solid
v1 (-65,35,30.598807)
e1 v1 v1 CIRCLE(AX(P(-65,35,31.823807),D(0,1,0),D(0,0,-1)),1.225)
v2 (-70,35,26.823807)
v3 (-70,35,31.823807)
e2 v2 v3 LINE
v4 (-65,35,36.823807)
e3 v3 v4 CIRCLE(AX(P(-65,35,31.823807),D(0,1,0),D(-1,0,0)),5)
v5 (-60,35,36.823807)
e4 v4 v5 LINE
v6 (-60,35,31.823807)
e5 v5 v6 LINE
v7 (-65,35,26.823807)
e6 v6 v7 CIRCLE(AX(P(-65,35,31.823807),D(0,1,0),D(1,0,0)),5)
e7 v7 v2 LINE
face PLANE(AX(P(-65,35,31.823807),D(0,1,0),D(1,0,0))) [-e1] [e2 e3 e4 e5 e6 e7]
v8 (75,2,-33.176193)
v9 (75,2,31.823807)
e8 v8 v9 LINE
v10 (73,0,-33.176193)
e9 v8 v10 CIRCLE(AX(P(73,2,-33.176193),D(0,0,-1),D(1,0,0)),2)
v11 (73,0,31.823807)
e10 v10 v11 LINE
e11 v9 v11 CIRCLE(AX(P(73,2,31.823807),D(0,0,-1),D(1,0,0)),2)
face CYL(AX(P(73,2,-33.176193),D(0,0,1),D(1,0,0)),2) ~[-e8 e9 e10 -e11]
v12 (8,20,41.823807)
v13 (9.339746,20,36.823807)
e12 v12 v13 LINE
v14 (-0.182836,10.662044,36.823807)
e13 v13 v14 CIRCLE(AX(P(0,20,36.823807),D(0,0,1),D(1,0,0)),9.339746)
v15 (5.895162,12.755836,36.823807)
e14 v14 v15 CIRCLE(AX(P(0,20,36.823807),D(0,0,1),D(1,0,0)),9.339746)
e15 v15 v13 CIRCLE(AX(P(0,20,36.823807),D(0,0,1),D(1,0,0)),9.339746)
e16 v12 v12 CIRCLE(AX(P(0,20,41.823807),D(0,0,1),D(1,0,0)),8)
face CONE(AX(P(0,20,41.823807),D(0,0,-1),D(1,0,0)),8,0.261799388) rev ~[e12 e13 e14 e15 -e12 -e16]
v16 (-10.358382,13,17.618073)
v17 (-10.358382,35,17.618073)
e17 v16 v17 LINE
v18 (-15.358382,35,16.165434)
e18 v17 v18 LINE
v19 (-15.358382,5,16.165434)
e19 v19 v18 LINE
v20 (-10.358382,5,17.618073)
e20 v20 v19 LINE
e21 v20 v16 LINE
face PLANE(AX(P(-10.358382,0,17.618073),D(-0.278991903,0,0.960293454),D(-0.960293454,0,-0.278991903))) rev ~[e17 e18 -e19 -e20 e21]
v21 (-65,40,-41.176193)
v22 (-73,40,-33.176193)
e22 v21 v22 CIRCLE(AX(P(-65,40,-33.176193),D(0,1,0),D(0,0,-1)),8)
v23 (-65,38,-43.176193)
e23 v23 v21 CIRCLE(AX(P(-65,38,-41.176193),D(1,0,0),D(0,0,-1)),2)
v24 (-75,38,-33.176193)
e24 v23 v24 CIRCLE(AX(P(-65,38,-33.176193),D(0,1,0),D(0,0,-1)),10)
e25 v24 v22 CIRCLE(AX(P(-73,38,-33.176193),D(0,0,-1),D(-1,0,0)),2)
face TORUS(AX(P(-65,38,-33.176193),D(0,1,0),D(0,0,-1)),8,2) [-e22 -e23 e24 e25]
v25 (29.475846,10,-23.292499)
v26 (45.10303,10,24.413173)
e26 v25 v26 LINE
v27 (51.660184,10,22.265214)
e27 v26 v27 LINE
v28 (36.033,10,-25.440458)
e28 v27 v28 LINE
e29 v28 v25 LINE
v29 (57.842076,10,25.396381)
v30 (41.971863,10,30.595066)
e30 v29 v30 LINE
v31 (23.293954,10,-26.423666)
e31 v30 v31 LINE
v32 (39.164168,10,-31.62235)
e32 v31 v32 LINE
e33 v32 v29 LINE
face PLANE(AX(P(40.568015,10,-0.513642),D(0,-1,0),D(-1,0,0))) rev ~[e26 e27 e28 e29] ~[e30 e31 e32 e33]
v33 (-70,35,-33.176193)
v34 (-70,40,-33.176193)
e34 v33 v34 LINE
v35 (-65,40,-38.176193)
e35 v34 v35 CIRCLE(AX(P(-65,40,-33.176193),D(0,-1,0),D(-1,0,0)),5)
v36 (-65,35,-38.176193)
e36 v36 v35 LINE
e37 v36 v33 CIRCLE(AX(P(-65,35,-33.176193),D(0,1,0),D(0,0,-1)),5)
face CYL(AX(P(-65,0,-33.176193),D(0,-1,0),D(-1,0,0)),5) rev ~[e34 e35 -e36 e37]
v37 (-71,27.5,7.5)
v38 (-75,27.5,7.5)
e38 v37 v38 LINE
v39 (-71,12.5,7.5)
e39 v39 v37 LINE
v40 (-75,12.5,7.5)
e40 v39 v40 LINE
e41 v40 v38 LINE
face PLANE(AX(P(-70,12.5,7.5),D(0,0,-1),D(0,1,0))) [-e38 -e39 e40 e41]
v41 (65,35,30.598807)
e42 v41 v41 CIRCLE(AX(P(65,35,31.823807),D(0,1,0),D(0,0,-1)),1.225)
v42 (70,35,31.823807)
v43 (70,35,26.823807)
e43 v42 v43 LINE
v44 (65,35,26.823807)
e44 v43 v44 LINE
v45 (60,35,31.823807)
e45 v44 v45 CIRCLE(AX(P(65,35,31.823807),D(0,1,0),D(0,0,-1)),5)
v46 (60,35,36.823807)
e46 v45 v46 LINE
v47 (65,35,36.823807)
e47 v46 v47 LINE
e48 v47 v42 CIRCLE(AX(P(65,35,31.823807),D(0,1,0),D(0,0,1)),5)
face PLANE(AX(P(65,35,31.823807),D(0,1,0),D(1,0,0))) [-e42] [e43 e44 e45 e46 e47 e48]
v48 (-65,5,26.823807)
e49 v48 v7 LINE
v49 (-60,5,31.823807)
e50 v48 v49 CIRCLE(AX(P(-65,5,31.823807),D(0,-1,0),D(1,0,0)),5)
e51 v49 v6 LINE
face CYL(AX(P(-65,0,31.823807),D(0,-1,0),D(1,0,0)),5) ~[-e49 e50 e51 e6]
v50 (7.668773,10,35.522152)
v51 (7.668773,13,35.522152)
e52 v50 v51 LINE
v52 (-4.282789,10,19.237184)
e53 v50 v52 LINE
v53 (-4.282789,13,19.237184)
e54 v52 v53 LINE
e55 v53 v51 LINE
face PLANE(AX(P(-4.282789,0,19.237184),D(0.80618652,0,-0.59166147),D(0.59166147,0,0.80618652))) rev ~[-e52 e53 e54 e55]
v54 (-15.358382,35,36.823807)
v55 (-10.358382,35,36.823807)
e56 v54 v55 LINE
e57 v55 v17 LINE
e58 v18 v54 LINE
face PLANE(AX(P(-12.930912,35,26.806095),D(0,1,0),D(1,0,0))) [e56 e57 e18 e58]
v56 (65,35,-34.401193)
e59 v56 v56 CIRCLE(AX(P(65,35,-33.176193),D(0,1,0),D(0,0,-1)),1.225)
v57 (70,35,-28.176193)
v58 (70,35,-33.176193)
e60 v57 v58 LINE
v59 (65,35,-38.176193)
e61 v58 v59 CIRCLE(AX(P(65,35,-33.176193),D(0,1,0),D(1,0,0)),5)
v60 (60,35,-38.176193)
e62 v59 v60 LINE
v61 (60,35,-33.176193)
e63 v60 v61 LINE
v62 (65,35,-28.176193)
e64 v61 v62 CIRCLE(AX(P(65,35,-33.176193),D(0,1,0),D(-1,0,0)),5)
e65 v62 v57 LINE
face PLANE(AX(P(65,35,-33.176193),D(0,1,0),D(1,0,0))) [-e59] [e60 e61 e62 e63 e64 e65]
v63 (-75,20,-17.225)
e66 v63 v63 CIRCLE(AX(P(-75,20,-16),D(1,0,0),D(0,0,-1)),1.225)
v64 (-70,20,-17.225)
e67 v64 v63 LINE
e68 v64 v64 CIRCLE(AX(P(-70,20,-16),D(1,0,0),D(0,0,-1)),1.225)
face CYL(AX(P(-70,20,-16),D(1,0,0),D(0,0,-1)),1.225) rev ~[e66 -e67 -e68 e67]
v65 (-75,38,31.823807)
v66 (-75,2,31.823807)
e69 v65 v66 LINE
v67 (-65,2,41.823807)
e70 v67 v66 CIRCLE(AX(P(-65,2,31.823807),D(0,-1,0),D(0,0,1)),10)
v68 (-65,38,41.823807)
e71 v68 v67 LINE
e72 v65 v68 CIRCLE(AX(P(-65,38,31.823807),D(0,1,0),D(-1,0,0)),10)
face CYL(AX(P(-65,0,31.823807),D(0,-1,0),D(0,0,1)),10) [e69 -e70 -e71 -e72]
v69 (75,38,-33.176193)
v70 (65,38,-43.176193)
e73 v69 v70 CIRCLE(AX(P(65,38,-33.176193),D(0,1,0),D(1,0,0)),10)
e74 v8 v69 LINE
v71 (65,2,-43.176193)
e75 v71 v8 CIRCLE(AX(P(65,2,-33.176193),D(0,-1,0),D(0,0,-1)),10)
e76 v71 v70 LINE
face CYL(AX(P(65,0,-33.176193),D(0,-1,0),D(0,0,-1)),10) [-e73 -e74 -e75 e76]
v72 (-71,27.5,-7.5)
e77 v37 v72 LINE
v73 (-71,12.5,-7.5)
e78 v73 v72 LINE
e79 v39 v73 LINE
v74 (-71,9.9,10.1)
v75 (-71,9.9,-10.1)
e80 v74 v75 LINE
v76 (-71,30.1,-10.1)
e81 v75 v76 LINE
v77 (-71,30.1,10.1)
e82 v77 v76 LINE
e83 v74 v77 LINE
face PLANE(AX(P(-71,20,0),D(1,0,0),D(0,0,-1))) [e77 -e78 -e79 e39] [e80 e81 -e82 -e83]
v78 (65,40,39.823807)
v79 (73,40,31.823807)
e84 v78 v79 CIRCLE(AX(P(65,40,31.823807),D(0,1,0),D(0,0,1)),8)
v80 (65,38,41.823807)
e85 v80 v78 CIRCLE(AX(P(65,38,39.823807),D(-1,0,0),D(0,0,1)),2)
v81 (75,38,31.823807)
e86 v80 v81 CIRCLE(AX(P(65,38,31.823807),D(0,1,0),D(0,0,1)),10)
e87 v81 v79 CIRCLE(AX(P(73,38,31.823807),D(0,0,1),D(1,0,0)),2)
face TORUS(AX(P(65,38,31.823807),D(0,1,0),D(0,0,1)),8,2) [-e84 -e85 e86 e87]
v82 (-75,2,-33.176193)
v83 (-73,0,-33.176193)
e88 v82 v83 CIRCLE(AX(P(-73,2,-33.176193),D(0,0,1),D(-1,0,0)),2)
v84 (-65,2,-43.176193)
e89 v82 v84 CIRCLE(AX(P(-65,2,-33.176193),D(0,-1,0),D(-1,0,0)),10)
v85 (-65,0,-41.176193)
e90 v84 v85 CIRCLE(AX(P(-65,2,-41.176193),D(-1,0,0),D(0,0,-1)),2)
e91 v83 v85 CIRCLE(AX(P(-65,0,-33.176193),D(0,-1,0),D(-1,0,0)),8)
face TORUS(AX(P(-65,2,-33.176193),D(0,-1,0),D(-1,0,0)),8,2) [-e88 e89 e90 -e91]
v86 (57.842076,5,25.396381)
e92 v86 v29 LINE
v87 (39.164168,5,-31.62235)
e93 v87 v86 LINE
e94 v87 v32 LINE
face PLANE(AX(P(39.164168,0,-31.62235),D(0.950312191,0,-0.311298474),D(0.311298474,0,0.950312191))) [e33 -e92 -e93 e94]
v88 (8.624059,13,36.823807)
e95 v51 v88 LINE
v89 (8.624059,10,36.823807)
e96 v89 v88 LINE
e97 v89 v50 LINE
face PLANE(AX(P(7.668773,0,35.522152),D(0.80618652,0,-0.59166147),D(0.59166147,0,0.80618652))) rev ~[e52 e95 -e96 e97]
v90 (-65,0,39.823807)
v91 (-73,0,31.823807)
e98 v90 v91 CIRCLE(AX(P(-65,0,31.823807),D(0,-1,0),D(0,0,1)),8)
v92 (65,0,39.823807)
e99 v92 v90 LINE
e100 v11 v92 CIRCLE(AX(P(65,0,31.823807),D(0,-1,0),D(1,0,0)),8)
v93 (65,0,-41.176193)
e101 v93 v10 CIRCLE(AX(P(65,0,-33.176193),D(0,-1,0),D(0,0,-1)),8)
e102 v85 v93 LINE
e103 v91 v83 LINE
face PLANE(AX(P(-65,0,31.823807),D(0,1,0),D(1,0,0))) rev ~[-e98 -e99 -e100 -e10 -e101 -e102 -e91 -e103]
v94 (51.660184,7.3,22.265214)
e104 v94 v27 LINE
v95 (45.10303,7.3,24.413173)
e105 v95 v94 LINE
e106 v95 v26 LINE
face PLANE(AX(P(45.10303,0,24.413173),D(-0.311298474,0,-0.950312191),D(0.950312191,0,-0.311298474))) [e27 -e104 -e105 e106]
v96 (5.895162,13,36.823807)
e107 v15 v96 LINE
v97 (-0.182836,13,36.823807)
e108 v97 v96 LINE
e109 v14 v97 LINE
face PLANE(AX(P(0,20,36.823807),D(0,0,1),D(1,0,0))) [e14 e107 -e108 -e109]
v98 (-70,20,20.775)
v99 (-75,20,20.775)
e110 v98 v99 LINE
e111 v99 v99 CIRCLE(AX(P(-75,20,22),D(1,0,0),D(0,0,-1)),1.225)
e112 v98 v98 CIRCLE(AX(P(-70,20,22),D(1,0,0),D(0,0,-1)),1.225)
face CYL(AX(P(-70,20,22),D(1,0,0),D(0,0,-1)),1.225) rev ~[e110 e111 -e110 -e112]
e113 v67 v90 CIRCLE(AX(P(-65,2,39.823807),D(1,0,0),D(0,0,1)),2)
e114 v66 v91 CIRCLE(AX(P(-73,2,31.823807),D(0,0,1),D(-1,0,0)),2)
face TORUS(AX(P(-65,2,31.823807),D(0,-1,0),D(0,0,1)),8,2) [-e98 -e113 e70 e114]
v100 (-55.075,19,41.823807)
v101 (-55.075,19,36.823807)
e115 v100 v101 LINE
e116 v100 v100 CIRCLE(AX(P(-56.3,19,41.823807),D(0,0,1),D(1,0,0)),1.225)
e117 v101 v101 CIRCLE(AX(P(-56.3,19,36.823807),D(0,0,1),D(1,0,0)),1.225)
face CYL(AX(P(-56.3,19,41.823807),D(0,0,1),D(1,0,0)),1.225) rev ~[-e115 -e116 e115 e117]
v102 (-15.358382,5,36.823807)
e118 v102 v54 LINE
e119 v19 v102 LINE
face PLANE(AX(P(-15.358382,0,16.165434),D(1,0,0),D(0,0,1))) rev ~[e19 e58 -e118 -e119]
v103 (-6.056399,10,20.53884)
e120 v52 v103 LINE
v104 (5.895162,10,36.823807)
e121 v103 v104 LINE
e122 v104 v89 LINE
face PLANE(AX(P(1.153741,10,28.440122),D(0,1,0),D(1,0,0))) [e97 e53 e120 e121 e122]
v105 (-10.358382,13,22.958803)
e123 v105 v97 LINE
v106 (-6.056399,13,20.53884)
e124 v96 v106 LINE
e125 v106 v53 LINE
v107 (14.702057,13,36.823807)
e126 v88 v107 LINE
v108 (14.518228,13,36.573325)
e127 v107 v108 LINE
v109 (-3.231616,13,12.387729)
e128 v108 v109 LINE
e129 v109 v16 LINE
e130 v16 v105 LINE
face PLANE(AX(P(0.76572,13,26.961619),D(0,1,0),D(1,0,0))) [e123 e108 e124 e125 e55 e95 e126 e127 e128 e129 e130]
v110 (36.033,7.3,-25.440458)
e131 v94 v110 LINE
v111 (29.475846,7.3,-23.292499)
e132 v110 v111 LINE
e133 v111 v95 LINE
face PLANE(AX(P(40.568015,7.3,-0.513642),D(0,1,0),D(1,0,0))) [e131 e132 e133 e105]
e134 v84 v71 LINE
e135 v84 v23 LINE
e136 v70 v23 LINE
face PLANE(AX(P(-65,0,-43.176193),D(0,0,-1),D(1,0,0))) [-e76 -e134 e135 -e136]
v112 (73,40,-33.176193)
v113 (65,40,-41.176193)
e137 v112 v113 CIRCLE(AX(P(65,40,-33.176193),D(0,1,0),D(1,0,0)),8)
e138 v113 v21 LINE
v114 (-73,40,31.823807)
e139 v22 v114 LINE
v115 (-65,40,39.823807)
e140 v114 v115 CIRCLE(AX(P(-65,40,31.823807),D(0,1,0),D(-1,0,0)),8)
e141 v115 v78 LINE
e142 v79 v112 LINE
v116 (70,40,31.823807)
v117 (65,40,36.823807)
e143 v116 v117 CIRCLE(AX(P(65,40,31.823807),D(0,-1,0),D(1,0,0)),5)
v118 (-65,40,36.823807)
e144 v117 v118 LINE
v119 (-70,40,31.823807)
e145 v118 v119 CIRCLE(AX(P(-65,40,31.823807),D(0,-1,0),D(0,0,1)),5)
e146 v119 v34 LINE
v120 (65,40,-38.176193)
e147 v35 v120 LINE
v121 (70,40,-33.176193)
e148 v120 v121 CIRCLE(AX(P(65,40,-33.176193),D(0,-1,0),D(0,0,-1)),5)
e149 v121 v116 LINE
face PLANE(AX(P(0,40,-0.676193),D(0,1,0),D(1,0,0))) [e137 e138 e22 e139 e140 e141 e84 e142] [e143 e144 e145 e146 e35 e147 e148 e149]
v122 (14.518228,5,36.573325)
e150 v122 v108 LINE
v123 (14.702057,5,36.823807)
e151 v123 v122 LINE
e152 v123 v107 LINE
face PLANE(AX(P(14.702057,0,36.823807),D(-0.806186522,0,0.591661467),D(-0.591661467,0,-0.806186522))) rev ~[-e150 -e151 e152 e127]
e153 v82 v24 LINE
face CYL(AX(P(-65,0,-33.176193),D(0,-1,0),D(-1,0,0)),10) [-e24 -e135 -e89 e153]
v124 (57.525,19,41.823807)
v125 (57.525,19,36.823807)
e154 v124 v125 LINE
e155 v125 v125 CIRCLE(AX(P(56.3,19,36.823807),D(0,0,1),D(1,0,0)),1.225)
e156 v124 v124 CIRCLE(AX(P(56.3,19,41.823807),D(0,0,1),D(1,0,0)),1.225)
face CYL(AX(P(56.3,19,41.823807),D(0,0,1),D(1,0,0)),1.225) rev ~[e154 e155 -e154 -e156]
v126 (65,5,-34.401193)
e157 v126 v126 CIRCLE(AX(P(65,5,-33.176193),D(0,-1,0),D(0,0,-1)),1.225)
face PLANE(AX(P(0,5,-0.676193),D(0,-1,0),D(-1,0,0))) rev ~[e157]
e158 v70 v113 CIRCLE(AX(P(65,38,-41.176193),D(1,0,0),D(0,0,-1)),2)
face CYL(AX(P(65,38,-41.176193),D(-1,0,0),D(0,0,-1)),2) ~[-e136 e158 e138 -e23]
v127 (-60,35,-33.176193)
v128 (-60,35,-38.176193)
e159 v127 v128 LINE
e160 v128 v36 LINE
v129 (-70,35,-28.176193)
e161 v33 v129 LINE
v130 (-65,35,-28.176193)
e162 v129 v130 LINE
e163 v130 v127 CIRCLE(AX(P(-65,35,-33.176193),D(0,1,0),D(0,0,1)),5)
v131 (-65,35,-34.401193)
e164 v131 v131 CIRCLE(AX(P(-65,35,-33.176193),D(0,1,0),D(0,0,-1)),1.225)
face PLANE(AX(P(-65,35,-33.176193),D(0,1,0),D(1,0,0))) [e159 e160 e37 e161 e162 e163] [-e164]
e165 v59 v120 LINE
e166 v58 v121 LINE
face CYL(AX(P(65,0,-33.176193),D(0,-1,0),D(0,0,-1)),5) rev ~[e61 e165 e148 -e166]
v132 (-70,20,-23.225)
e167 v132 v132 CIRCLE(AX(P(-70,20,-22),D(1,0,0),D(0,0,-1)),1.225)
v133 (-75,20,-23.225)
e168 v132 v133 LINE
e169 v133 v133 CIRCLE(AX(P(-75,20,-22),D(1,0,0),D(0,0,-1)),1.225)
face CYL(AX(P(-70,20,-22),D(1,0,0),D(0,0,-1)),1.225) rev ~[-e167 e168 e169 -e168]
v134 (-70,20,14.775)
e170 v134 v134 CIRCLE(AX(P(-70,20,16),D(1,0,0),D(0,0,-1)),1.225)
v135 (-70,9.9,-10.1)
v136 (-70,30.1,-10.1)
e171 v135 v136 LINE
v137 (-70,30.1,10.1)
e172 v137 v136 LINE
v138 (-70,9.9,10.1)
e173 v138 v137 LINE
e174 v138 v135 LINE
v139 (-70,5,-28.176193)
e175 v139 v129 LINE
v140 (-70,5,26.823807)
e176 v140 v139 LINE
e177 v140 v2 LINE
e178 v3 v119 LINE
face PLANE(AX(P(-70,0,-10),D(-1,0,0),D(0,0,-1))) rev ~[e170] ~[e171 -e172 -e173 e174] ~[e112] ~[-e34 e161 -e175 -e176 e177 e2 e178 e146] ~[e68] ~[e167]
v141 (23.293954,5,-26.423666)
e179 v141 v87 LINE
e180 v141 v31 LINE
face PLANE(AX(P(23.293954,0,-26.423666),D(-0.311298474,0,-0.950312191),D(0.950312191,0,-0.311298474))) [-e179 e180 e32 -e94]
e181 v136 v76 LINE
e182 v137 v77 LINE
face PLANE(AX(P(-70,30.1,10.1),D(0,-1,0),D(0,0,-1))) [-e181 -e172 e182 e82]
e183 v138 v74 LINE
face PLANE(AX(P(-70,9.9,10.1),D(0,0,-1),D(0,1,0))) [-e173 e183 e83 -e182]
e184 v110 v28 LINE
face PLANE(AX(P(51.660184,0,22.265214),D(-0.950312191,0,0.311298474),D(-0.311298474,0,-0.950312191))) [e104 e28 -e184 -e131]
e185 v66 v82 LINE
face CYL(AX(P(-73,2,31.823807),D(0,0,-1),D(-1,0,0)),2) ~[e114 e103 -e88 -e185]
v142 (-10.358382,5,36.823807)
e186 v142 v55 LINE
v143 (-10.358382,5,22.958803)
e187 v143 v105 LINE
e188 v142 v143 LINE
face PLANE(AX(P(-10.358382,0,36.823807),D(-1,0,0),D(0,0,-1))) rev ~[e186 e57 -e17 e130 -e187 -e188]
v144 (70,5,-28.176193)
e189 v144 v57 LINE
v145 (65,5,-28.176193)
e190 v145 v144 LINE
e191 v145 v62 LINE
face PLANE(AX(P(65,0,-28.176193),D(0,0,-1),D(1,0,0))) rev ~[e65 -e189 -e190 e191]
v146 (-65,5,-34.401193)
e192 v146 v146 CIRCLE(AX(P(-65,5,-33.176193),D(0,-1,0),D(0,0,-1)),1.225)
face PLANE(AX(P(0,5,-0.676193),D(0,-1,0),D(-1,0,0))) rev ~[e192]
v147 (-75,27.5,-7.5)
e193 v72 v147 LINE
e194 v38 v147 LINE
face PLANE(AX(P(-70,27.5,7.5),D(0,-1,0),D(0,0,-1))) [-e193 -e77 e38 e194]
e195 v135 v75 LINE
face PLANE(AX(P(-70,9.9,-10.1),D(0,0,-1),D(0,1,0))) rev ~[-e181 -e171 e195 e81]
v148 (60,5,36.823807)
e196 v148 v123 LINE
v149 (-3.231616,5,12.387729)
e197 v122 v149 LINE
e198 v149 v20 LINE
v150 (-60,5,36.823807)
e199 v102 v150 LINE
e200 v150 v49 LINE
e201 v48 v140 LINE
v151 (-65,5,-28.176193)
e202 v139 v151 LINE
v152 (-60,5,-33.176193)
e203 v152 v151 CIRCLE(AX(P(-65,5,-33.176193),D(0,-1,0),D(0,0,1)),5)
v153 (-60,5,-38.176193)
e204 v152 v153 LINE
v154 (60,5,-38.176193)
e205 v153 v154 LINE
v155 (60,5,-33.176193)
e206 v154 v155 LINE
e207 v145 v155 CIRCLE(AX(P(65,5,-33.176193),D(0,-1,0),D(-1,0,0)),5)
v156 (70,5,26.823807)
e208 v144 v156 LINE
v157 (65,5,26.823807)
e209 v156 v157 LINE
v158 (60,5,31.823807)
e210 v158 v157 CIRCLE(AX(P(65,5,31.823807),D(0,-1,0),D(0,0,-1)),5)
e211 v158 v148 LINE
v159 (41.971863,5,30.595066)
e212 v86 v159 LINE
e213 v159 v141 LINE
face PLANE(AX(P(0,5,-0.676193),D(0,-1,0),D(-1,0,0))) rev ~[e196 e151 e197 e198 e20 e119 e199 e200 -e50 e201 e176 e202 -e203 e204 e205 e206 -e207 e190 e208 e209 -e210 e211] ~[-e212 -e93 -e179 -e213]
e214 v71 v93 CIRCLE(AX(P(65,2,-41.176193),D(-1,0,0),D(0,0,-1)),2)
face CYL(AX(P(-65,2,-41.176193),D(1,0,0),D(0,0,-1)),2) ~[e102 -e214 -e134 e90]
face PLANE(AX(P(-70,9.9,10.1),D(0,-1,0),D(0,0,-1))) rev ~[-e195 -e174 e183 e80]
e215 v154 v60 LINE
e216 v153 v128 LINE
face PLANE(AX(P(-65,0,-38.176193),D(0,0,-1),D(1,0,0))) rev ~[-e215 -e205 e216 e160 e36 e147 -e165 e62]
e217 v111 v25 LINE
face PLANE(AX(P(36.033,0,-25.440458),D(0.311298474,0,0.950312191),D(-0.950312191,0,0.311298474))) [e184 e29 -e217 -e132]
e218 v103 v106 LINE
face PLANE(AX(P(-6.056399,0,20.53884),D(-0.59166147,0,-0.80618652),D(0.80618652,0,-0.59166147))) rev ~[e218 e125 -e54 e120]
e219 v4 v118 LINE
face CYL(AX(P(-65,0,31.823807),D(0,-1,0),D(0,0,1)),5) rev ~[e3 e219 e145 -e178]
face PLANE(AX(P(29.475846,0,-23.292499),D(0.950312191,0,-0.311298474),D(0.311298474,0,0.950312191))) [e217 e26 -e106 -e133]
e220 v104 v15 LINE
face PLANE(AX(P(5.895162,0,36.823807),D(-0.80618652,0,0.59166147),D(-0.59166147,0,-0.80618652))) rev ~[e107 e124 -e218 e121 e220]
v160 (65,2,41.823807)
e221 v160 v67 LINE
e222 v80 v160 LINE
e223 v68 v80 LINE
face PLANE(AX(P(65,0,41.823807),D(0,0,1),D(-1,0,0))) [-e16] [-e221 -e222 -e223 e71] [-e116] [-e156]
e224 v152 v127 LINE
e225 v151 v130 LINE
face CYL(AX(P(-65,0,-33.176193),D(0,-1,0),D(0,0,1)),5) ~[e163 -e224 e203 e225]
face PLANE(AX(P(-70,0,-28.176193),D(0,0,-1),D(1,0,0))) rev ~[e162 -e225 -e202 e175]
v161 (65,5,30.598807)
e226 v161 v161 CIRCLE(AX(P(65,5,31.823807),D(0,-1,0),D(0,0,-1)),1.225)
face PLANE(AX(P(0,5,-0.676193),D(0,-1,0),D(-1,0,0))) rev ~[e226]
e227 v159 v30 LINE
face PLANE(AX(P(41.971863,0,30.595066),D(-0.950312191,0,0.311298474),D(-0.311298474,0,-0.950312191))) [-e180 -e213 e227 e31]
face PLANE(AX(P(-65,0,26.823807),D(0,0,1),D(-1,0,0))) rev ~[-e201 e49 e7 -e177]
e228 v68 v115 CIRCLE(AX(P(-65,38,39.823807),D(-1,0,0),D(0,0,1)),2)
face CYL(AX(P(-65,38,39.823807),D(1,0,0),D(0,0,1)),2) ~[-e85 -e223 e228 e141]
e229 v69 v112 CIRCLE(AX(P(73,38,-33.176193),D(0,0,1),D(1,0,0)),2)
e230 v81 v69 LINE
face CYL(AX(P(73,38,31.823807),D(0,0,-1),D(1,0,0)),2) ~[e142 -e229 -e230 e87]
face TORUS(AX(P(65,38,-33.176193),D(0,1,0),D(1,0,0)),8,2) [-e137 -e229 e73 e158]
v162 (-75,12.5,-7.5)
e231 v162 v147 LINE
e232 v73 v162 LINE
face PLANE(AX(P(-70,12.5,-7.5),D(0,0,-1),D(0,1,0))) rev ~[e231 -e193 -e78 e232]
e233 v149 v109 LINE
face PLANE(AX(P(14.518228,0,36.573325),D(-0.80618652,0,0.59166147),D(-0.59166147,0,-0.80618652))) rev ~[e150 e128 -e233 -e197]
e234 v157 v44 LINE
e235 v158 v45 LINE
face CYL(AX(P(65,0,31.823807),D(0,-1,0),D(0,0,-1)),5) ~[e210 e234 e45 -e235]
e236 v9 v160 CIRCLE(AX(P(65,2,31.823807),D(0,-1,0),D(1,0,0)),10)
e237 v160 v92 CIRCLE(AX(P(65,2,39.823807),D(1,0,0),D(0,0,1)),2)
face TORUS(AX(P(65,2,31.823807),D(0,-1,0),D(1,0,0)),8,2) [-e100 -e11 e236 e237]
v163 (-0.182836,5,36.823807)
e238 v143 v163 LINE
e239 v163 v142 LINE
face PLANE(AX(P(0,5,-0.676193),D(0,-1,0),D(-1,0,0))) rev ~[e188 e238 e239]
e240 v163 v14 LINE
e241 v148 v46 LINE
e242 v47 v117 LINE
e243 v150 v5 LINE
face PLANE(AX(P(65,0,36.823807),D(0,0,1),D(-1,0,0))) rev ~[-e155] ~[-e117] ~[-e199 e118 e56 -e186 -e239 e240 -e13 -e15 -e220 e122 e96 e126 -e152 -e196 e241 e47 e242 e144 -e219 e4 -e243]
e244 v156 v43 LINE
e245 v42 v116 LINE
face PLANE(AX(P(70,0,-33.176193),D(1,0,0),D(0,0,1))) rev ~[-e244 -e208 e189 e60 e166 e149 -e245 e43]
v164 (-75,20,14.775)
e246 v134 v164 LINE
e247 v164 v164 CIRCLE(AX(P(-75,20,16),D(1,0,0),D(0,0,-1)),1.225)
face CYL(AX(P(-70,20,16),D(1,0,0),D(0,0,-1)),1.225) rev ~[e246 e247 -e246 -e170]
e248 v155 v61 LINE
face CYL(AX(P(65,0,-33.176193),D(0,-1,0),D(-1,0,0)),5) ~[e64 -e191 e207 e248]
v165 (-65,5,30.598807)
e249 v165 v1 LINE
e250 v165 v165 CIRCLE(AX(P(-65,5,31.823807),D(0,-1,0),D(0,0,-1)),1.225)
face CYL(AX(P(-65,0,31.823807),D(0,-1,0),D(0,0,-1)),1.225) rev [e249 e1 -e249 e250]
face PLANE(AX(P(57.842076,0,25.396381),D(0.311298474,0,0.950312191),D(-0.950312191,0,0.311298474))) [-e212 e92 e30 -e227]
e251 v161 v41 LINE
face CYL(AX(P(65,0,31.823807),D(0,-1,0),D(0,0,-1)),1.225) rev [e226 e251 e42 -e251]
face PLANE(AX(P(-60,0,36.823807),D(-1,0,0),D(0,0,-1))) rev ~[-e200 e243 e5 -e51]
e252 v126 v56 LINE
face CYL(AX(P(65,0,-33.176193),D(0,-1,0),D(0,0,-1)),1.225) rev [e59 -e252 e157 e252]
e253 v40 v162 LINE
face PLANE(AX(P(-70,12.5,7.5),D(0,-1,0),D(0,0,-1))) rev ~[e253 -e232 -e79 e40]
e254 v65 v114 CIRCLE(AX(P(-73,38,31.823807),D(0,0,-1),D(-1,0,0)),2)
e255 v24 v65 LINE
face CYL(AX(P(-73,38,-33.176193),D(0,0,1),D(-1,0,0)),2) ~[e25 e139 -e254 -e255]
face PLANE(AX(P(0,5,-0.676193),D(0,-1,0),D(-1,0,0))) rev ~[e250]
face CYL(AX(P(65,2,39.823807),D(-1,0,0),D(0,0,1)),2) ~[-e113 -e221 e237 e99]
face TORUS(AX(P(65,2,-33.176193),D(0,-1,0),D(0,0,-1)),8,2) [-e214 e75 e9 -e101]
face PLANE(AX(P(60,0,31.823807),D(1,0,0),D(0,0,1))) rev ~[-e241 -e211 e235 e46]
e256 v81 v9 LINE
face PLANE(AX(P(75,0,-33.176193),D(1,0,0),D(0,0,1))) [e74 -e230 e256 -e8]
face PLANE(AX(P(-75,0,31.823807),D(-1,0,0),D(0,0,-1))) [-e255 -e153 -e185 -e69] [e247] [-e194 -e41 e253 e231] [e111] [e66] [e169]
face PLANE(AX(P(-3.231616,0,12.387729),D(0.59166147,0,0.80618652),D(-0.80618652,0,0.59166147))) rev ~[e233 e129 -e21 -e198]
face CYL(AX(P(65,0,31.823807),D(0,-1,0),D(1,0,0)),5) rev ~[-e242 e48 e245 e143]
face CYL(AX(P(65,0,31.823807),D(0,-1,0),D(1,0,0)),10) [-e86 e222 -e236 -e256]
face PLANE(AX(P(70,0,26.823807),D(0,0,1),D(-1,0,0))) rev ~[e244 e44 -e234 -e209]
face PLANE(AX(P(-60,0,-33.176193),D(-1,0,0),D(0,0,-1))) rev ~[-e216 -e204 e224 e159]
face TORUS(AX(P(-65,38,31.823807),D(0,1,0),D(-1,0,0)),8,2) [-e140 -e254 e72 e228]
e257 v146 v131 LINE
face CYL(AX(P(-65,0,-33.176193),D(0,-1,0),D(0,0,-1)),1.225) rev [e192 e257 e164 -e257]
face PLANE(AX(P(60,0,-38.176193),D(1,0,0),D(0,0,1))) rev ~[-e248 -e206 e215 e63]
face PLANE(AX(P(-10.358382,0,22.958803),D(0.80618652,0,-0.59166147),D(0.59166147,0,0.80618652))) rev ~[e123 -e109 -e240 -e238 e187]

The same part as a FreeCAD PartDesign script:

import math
import FreeCAD as App
import Part
import Sketcher
from FreeCAD import Vector
Q = App.Units.Quantity


def edges_at(feature, points):
    """Names of the edges that pass closest to the given points."""
    edges = feature.Shape.Edges
    near = lambda p: min(range(len(edges)), key=lambda i: edges[i].distToShape(Part.Vertex(*p))[0])
    return sorted({f"Edge{near(p) + 1}" for p in points})


def faces_at(feature, points):
    """Names of the faces that lie closest to the given points."""
    faces = feature.Shape.Faces
    near = lambda p: min(range(len(faces)), key=lambda i: faces[i].distToShape(Part.Vertex(*p))[0])
    return sorted({f"Face{near(p) + 1}" for p in points})


def add_polygon(sketch, points):
    """Adds a closed chain of lines whose ends are joined by coincident constraints."""
    first, n = sketch.GeometryCount, len(points)
    for a, b in zip(points, points[1:] + points[:1]):
        sketch.addGeometry(Part.LineSegment(App.Vector(*a, 0), App.Vector(*b, 0)), False)
    for i in range(n):
        sketch.addConstraint(Sketcher.Constraint("Coincident", first + i, 2, first + (i + 1) % n, 1))

doc = App.newDocument("Part")
body = doc.addObject("PartDesign::Body", "Body")

sketch1 = doc.addObject("Sketcher::SketchObject", "Sketch")
body.addObject(sketch1)
sketch1.AttachmentSupport = (doc.XZ_Plane, [""])
sketch1.MapMode = "FlatFace"
sketch1.addGeometry([
    Part.LineSegment(Vector(75, 32, 0), Vector(75, -33, 0)),
    Part.ArcOfCircle(Part.Circle(Vector(65, -33, 0), Vector(0, 0, 1), 10), math.radians(-90), math.radians(0)),
    Part.LineSegment(Vector(65, -43, 0), Vector(-65, -43, 0)),
    Part.ArcOfCircle(Part.Circle(Vector(-65, -33, 0), Vector(0, 0, 1), 10), math.radians(180), math.radians(270)),
    Part.LineSegment(Vector(-75, -33, 0), Vector(-75, 32, 0)),
    Part.ArcOfCircle(Part.Circle(Vector(-65, 32, 0), Vector(0, 0, 1), 10), math.radians(90), math.radians(180)),
    Part.LineSegment(Vector(-65, 42, 0), Vector(65, 42, 0)),
    Part.ArcOfCircle(Part.Circle(Vector(65, 32, 0), Vector(0, 0, 1), 10), math.radians(0), math.radians(90)),
], False)
sketch1.addConstraint([
    Sketcher.Constraint("Tangent", 0, 2, 1, 2),
    Sketcher.Constraint("Tangent", 1, 1, 2, 1),
    Sketcher.Constraint("Tangent", 2, 2, 3, 2),
    Sketcher.Constraint("Tangent", 3, 1, 4, 1),
    Sketcher.Constraint("Tangent", 4, 2, 5, 2),
    Sketcher.Constraint("Tangent", 5, 1, 6, 1),
    Sketcher.Constraint("Tangent", 6, 2, 7, 2),
    Sketcher.Constraint("Tangent", 7, 1, 0, 1),
    Sketcher.Constraint("Vertical", 0),
    Sketcher.Constraint("Horizontal", 2),
    Sketcher.Constraint("Vertical", 4),
    Sketcher.Constraint("Horizontal", 6),
    Sketcher.Constraint("Equal", 1, 3),
    Sketcher.Constraint("Equal", 3, 5),
    Sketcher.Constraint("Equal", 5, 7),
    Sketcher.Constraint("Radius", 1, Q("10 mm")),
    Sketcher.Constraint("DistanceX", 2, 2, 2, 1, Q("130 mm")),
    Sketcher.Constraint("DistanceY", 0, 2, 0, 1, Q("65 mm")),
    Sketcher.Constraint("DistanceX", -1, 1, 1, 3, Q("65 mm")),
    Sketcher.Constraint("DistanceY", 1, 3, -1, 1, Q("33.176193 mm")),
])
pad1 = doc.addObject("PartDesign::Pad", "Pad")
body.addObject(pad1)
pad1.Profile = sketch1
pad1.Length = 5
pad1.Reversed = True

sketch2 = doc.addObject("Sketcher::SketchObject", "Sketch001")
body.addObject(sketch2)
sketch2.AttachmentSupport = (doc.XZ_Plane, [""])
sketch2.MapMode = "FlatFace"
add_polygon(sketch2, [(58, 25), (39, -32), (23, -26), (42, 31)])
add_polygon(sketch2, [(36, -25), (52, 22), (45, 24), (29, -23)])
sketch2.addConstraint([
    Sketcher.Constraint("Perpendicular", 0, 1),
    Sketcher.Constraint("Perpendicular", 1, 2),
    Sketcher.Constraint("Perpendicular", 2, 3),
    Sketcher.Constraint("Perpendicular", 3, 4),
    Sketcher.Constraint("Perpendicular", 4, 5),
    Sketcher.Constraint("Perpendicular", 5, 6),
    Sketcher.Constraint("Perpendicular", 6, 7),
    Sketcher.Constraint("Distance", 0, Q("60 mm")),
    Sketcher.Constraint("Distance", 1, Q("16.7 mm")),
    Sketcher.Constraint("Distance", 4, Q("50.2 mm")),
    Sketcher.Constraint("Distance", 5, Q("6.9 mm")),
    Sketcher.Constraint("DistanceX", -1, 1, 7, 2, Q("36.033 mm")),
    Sketcher.Constraint("DistanceY", 6, 2, -1, 1, Q("23.292499 mm")),
    Sketcher.Constraint("DistanceY", 0, 2, -1, 1, Q("31.62235 mm")),
    Sketcher.Constraint("DistanceY", -1, 1, 3, 2, Q("25.396381 mm")),
    Sketcher.Constraint("DistanceX", 2, 2, 4, 2, Q("9.688321 mm")),
])
pad2 = doc.addObject("PartDesign::Pad", "Pad001")
body.addObject(pad2)
pad2.Profile = sketch2
pad2.Length = 10
pad2.Reversed = True

sketch3 = doc.addObject("Sketcher::SketchObject", "Sketch002")
body.addObject(sketch3)
sketch3.AttachmentSupport = (doc.XZ_Plane, [""])
sketch3.MapMode = "FlatFace"
add_polygon(sketch3, [(-15, 16), (-15, 37), (-10, 37), (-10, 18)])
sketch3.addConstraint([
    Sketcher.Constraint("Vertical", 0),
    Sketcher.Constraint("Horizontal", 1),
    Sketcher.Constraint("Vertical", 2),
    Sketcher.Constraint("DistanceX", 1, 1, 1, 2, Q("5 mm")),
    Sketcher.Constraint("Distance", 3, Q("5.206742 mm")),
    Sketcher.Constraint("DistanceY", 0, 1, 0, 2, Q("20.658373 mm")),
    Sketcher.Constraint("DistanceX", 0, 2, -1, 1, Q("15.358382 mm")),
    Sketcher.Constraint("DistanceY", -1, 1, 0, 2, Q("36.823807 mm")),
])
pad3 = doc.addObject("PartDesign::Pad", "Pad002")
body.addObject(pad3)
pad3.Profile = sketch3
pad3.Length = 35
pad3.Reversed = True

sketch4 = doc.addObject("Sketcher::SketchObject", "Sketch003")
body.addObject(sketch4)
sketch4.AttachmentSupport = (doc.XZ_Plane, [""])
sketch4.MapMode = "FlatFace"
sketch4.addGeometry([
    Part.LineSegment(Vector(75, 31.8, 0), Vector(75, -33.2, 0)),
    Part.ArcOfCircle(Part.Circle(Vector(65, -33.2, 0), Vector(0, 0, 1), 10), math.radians(-90), math.radians(0)),
    Part.LineSegment(Vector(65, -43.2, 0), Vector(-65, -43.2, 0)),
    Part.ArcOfCircle(Part.Circle(Vector(-65, -33.2, 0), Vector(0, 0, 1), 10), math.radians(180), math.radians(270)),
    Part.LineSegment(Vector(-75, -33.2, 0), Vector(-75, 31.8, 0)),
    Part.ArcOfCircle(Part.Circle(Vector(-65, 31.8, 0), Vector(0, 0, 1), 10), math.radians(90), math.radians(180)),
    Part.LineSegment(Vector(-65, 41.8, 0), Vector(65, 41.8, 0)),
    Part.ArcOfCircle(Part.Circle(Vector(65, 31.8, 0), Vector(0, 0, 1), 10), math.radians(0), math.radians(90)),
    Part.LineSegment(Vector(65, 36.8, 0), Vector(-65, 36.8, 0)),
    Part.ArcOfCircle(Part.Circle(Vector(-65, 31.8, 0), Vector(0, 0, 1), 5), math.radians(90), math.radians(180)),
    Part.LineSegment(Vector(-70, 31.8, 0), Vector(-70, 10, 0)),
    Part.LineSegment(Vector(-70, 10, 0), Vector(-71, 10, 0)),
    Part.LineSegment(Vector(-71, 10, 0), Vector(-71, -10, 0)),
    Part.LineSegment(Vector(-71, -10, 0), Vector(-70, -10, 0)),
    Part.LineSegment(Vector(-70, -10, 0), Vector(-70, -33.2, 0)),
    Part.ArcOfCircle(Part.Circle(Vector(-65, -33.2, 0), Vector(0, 0, 1), 5), math.radians(180), math.radians(270)),
    Part.LineSegment(Vector(-65, -38.2, 0), Vector(65, -38.2, 0)),
    Part.ArcOfCircle(Part.Circle(Vector(65, -33.2, 0), Vector(0, 0, 1), 5), math.radians(-90), math.radians(0)),
    Part.LineSegment(Vector(70, -33.2, 0), Vector(70, 31.8, 0)),
    Part.ArcOfCircle(Part.Circle(Vector(65, 31.8, 0), Vector(0, 0, 1), 5), math.radians(0), math.radians(90)),
], False)
sketch4.addConstraint([
    Sketcher.Constraint("Tangent", 0, 2, 1, 2),
    Sketcher.Constraint("Tangent", 1, 1, 2, 1),
    Sketcher.Constraint("Tangent", 2, 2, 3, 2),
    Sketcher.Constraint("Tangent", 3, 1, 4, 1),
    Sketcher.Constraint("Tangent", 4, 2, 5, 2),
    Sketcher.Constraint("Tangent", 5, 1, 6, 1),
    Sketcher.Constraint("Tangent", 6, 2, 7, 2),
    Sketcher.Constraint("Tangent", 7, 1, 0, 1),
    Sketcher.Constraint("Tangent", 8, 2, 9, 1),
    Sketcher.Constraint("Tangent", 9, 2, 10, 1),
    Sketcher.Constraint("Coincident", 10, 2, 11, 1),
    Sketcher.Constraint("Coincident", 11, 2, 12, 1),
    Sketcher.Constraint("Coincident", 12, 2, 13, 1),
    Sketcher.Constraint("Coincident", 13, 2, 14, 1),
    Sketcher.Constraint("Tangent", 14, 2, 15, 1),
    Sketcher.Constraint("Tangent", 15, 2, 16, 1),
    Sketcher.Constraint("Tangent", 16, 2, 17, 1),
    Sketcher.Constraint("Tangent", 17, 2, 18, 1),
    Sketcher.Constraint("Tangent", 18, 2, 19, 1),
    Sketcher.Constraint("Tangent", 19, 2, 8, 1),
    Sketcher.Constraint("Vertical", 0),
    Sketcher.Constraint("Horizontal", 2),
    Sketcher.Constraint("Vertical", 4),
    Sketcher.Constraint("Horizontal", 6),
    Sketcher.Constraint("Horizontal", 8),
    Sketcher.Constraint("Vertical", 10),
    Sketcher.Constraint("Horizontal", 11),
    Sketcher.Constraint("Vertical", 12),
    Sketcher.Constraint("Horizontal", 13),
    Sketcher.Constraint("Vertical", 14),
    Sketcher.Constraint("Horizontal", 16),
    Sketcher.Constraint("Vertical", 18),
    Sketcher.Constraint("Coincident", 9, 3, 5, 3),
    Sketcher.Constraint("Coincident", 15, 3, 3, 3),
    Sketcher.Constraint("Coincident", 17, 3, 1, 3),
    Sketcher.Constraint("Coincident", 19, 3, 7, 3),
    Sketcher.Constraint("Equal", 1, 3),
    Sketcher.Constraint("Equal", 3, 5),
    Sketcher.Constraint("Equal", 5, 7),
    Sketcher.Constraint("Radius", 1, Q("10 mm")),
    Sketcher.Constraint("Radius", 9, Q("5 mm")),
    Sketcher.Constraint("DistanceX", 2, 2, 2, 1, Q("130 mm")),
    Sketcher.Constraint("DistanceX", 11, 2, 11, 1, Q("1 mm")),
    Sketcher.Constraint("DistanceY", 0, 2, 0, 1, Q("65 mm")),
    Sketcher.Constraint("DistanceY", 12, 2, 12, 1, Q("20 mm")),
    Sketcher.Constraint("DistanceX", -1, 1, 1, 3, Q("65 mm")),
    Sketcher.Constraint("DistanceY", -1, 1, 10, 2, Q("10 mm")),
    Sketcher.Constraint("DistanceY", 10, 2, 10, 1, Q("21.823807 mm")),
])
pad4 = doc.addObject("PartDesign::Pad", "Pad003")
body.addObject(pad4)
pad4.Profile = sketch4
pad4.Length = 40
pad4.Reversed = True

sketch5 = doc.addObject("Sketcher::SketchObject", "Sketch004")
body.addObject(sketch5)
sketch5.AttachmentSupport = (doc.XZ_Plane, [""])
sketch5.MapMode = "FlatFace"
add_polygon(sketch5, [(-10.36, 22.96), (-0.18, 36.82), (5.9, 36.82), (-6.06, 20.54), (-4.28, 19.24), (7.67, 35.52), (8.62, 36.82), (14.7, 36.82), (14.52, 36.57), (-3.23, 12.39), (-10.36, 17.62)])
sketch5.addConstraint([
    Sketcher.Constraint("Horizontal", 1),
    Sketcher.Constraint("Horizontal", 6),
    Sketcher.Constraint("Vertical", 10),
    Sketcher.Constraint("Parallel", 0, 2),
    Sketcher.Constraint("Perpendicular", 2, 3),
    Sketcher.Constraint("Perpendicular", 3, 4),
    Sketcher.Constraint("Parallel", 4, 5),
    Sketcher.Constraint("Parallel", 5, 7),
    Sketcher.Constraint("Parallel", 7, 8),
    Sketcher.Constraint("Perpendicular", 8, 9),
    Sketcher.Constraint("Horizontal", 1, 2, 5, 2),
    Sketcher.Constraint("Equal", 1, 6),
    Sketcher.Constraint("Equal", 2, 4),
    Sketcher.Constraint("Distance", 8, Q("30 mm")),
    Sketcher.Constraint("Distance", 2, Q("20.2 mm")),
    Sketcher.Constraint("Distance", 3, Q("2.2 mm")),
    Sketcher.Constraint("Distance", 7, Q("0.3107 mm")),
    Sketcher.Constraint("DistanceY", 10, 1, 10, 2, Q("5.34073 mm")),
    Sketcher.Constraint("DistanceX", 2, 2, -1, 1, Q("6.056399 mm")),
    Sketcher.Constraint("Distance", 0, Q("17.198258 mm")),
    Sketcher.Constraint("DistanceX", 1, 1, 1, 2, Q("6.077998 mm")),
    Sketcher.Constraint("DistanceY", -1, 1, 2, 2, Q("20.53884 mm")),
])
pad5 = doc.addObject("PartDesign::Pad", "Pad004")
body.addObject(pad5)
pad5.Profile = sketch5
pad5.Length = 13
pad5.Reversed = True

sketch6 = doc.addObject("Sketcher::SketchObject", "Sketch005")
body.addObject(sketch6)
sketch6.AttachmentSupport = (doc.XZ_Plane, [""])
sketch6.MapMode = "FlatFace"
add_polygon(sketch6, [(-71, -10), (-71, 10), (-70, 10), (-70, -10)])
sketch6.addConstraint([
    Sketcher.Constraint("Vertical", 0),
    Sketcher.Constraint("Horizontal", 1),
    Sketcher.Constraint("Vertical", 2),
    Sketcher.Constraint("Horizontal", 3),
    Sketcher.Constraint("DistanceX", 1, 1, 1, 2, Q("1 mm")),
    Sketcher.Constraint("DistanceY", 0, 1, 0, 2, Q("20 mm")),
    Sketcher.Constraint("DistanceX", 0, 2, -1, 1, Q("71 mm")),
    Sketcher.Constraint("DistanceY", -1, 1, 0, 2, Q("10 mm")),
])
pad6 = doc.addObject("PartDesign::Pad", "Pad005")
body.addObject(pad6)
pad6.Profile = sketch6
pad6.Length = 40
pad6.Reversed = True
body2 = doc.addObject("PartDesign::Body", "Body001")

sketch7 = doc.addObject("Sketcher::SketchObject", "Sketch006")
body2.addObject(sketch7)
sketch7.AttachmentSupport = (doc.getObject("XY_Plane001"), [""])
sketch7.MapMode = "FlatFace"
sketch7.AttachmentOffset = App.Placement(Vector(0, 0, 41.823807), App.Rotation())
sketch7.addGeometry(Part.Circle(Vector(0, 20, 0), Vector(0, 0, 1), 8), False)
sketch7.addConstraint([
    Sketcher.Constraint("PointOnObject", 0, 3, -2),
    Sketcher.Constraint("Diameter", 0, Q("16 mm")),
    Sketcher.Constraint("DistanceY", -1, 1, 0, 3, Q("20 mm")),
])
pad7 = doc.addObject("PartDesign::Pad", "Pad006")
body2.addObject(pad7)
pad7.Profile = sketch7
pad7.Length = 5
pad7.Reversed = True
doc.recompute()

datumplane = doc.addObject("PartDesign::Plane", "DatumPlane")
body2.addObject(datumplane)
datumplane.AttachmentSupport = (doc.getObject("XY_Plane001"), [""])
datumplane.MapMode = "FlatFace"
datumplane.AttachmentOffset = App.Placement(Vector(0, 0, 41.823807), App.Rotation())
draft = doc.addObject("PartDesign::Draft", "Draft")
body2.addObject(draft)
draft.Base = (pad7, faces_at(pad7, [(-8, 20, 39.324)]))
draft.NeutralPlane = (datumplane, [""])
draft.Angle = 15
draft.Reversed = False
doc.recompute()

boolean = doc.addObject("PartDesign::Boolean", "Boolean")
body.addObject(boolean)
boolean.Type = "Cut"
boolean.addObjects([body2])

sketch8 = doc.addObject("Sketcher::SketchObject", "Sketch007")
body.addObject(sketch8)
sketch8.AttachmentSupport = (doc.XY_Plane, [""])
sketch8.MapMode = "FlatFace"
sketch8.AttachmentOffset = App.Placement(Vector(0, 0, 41.823807), App.Rotation())
sketch8.addGeometry([
    Part.Circle(Vector(56.3, 19, 0), Vector(0, 0, 1), 1.2),
    Part.Circle(Vector(-56.3, 19, 0), Vector(0, 0, 1), 1.2),
], False)
sketch8.addConstraint([
    Sketcher.Constraint("Equal", 0, 1),
    Sketcher.Constraint("Symmetric", 0, 3, 1, 3, -2),
    Sketcher.Constraint("Diameter", 0, Q("2.45 mm")),
    Sketcher.Constraint("DistanceY", -1, 1, 0, 3, Q("19 mm")),
    Sketcher.Constraint("DistanceX", -1, 1, 0, 3, Q("56.3 mm")),
])
pocket1 = doc.addObject("PartDesign::Pocket", "Pocket")
body.addObject(pocket1)
pocket1.Profile = sketch8
pocket1.Length = 5

sketch9 = doc.addObject("Sketcher::SketchObject", "Sketch008")
body.addObject(sketch9)
sketch9.AttachmentSupport = (doc.XZ_Plane, [""])
sketch9.MapMode = "FlatFace"
add_polygon(sketch9, [(36, -25), (29, -23), (45, 24), (52, 22)])
sketch9.addConstraint([
    Sketcher.Constraint("Perpendicular", 0, 1),
    Sketcher.Constraint("Perpendicular", 1, 2),
    Sketcher.Constraint("Perpendicular", 2, 3),
    Sketcher.Constraint("Distance", 0, Q("6.9 mm")),
    Sketcher.Constraint("Distance", 1, Q("50.2 mm")),
    Sketcher.Constraint("DistanceX", -1, 1, 3, 2, Q("36.033 mm")),
    Sketcher.Constraint("DistanceY", 0, 2, -1, 1, Q("23.292499 mm")),
    Sketcher.Constraint("DistanceX", -1, 1, 1, 2, Q("45.10303 mm")),
])
pad8 = doc.addObject("PartDesign::Pad", "Pad007")
body.addObject(pad8)
pad8.Profile = sketch9
pad8.Length = 7.3
pad8.Reversed = True

sketch10 = doc.addObject("Sketcher::SketchObject", "Sketch009")
body.addObject(sketch10)
sketch10.AttachmentSupport = (doc.XZ_Plane, [""])
sketch10.MapMode = "FlatFace"
add_polygon(sketch10, [(-6.1, 20.5), (5.9, 36.8), (8.6, 36.8), (7.7, 35.5), (-4.3, 19.2)])
sketch10.addConstraint([
    Sketcher.Constraint("Horizontal", 1),
    Sketcher.Constraint("Parallel", 0, 2),
    Sketcher.Constraint("Parallel", 2, 3),
    Sketcher.Constraint("Perpendicular", 3, 4),
    Sketcher.Constraint("Equal", 0, 3),
    Sketcher.Constraint("Distance", 0, Q("20.2 mm")),
    Sketcher.Constraint("Distance", 4, Q("2.2 mm")),
    Sketcher.Constraint("DistanceX", 4, 2, -1, 1, Q("6.056399 mm")),
    Sketcher.Constraint("DistanceX", 1, 1, 1, 2, Q("2.728897 mm")),
    Sketcher.Constraint("DistanceY", -1, 1, 2, 2, Q("35.522152 mm")),
])
pad9 = doc.addObject("PartDesign::Pad", "Pad008")
body.addObject(pad9)
pad9.Profile = sketch10
pad9.Length = 10
pad9.Reversed = True

sketch11 = doc.addObject("Sketcher::SketchObject", "Sketch010")
body.addObject(sketch11)
sketch11.AttachmentSupport = (doc.XZ_Plane, [""])
sketch11.MapMode = "FlatFace"
sketch11.addGeometry([
    Part.ArcOfCircle(Part.Circle(Vector(-65, 31.8, 0), Vector(0, 0, 1), 5), math.radians(90), math.radians(180)),
    Part.LineSegment(Vector(-65, 36.8, 0), Vector(-60, 36.8, 0)),
    Part.LineSegment(Vector(-60, 36.8, 0), Vector(-60, 31.8, 0)),
    Part.ArcOfCircle(Part.Circle(Vector(-65, 31.8, 0), Vector(0, 0, 1), 5), math.radians(-90), math.radians(0)),
    Part.LineSegment(Vector(-65, 26.8, 0), Vector(-70, 26.8, 0)),
    Part.LineSegment(Vector(-70, 26.8, 0), Vector(-70, 31.8, 0)),
    Part.Circle(Vector(-65, 31.8, 0), Vector(0, 0, 1), 1.2),
    Part.LineSegment(Vector(-70, -33.2, 0), Vector(-70, -28.2, 0)),
    Part.LineSegment(Vector(-70, -28.2, 0), Vector(-65, -28.2, 0)),
    Part.ArcOfCircle(Part.Circle(Vector(-65, -33.2, 0), Vector(0, 0, 1), 5), math.radians(0), math.radians(90)),
    Part.LineSegment(Vector(-60, -33.2, 0), Vector(-60, -38.2, 0)),
    Part.LineSegment(Vector(-60, -38.2, 0), Vector(-65, -38.2, 0)),
    Part.ArcOfCircle(Part.Circle(Vector(-65, -33.2, 0), Vector(0, 0, 1), 5), math.radians(180), math.radians(270)),
    Part.Circle(Vector(-65, -33.2, 0), Vector(0, 0, 1), 1.2),
    Part.LineSegment(Vector(60, 31.8, 0), Vector(60, 36.8, 0)),
    Part.LineSegment(Vector(60, 36.8, 0), Vector(65, 36.8, 0)),
    Part.ArcOfCircle(Part.Circle(Vector(65, 31.8, 0), Vector(0, 0, 1), 5), math.radians(0), math.radians(90)),
    Part.LineSegment(Vector(70, 31.8, 0), Vector(70, 26.8, 0)),
    Part.LineSegment(Vector(70, 26.8, 0), Vector(65, 26.8, 0)),
    Part.ArcOfCircle(Part.Circle(Vector(65, 31.8, 0), Vector(0, 0, 1), 5), math.radians(180), math.radians(270)),
    Part.Circle(Vector(65, 31.8, 0), Vector(0, 0, 1), 1.2),
    Part.LineSegment(Vector(65, -38.2, 0), Vector(60, -38.2, 0)),
    Part.LineSegment(Vector(60, -38.2, 0), Vector(60, -33.2, 0)),
    Part.ArcOfCircle(Part.Circle(Vector(65, -33.2, 0), Vector(0, 0, 1), 5), math.radians(90), math.radians(180)),
    Part.LineSegment(Vector(65, -28.2, 0), Vector(70, -28.2, 0)),
    Part.LineSegment(Vector(70, -28.2, 0), Vector(70, -33.2, 0)),
    Part.ArcOfCircle(Part.Circle(Vector(65, -33.2, 0), Vector(0, 0, 1), 5), math.radians(-90), math.radians(0)),
    Part.Circle(Vector(65, -33.2, 0), Vector(0, 0, 1), 1.2),
], False)
sketch11.addConstraint([
    Sketcher.Constraint("Tangent", 0, 1, 1, 1),
    Sketcher.Constraint("Coincident", 1, 2, 2, 1),
    Sketcher.Constraint("Tangent", 2, 2, 3, 2),
    Sketcher.Constraint("Tangent", 3, 1, 4, 1),
    Sketcher.Constraint("Coincident", 4, 2, 5, 1),
    Sketcher.Constraint("Tangent", 5, 2, 0, 2),
    Sketcher.Constraint("Coincident", 7, 2, 8, 1),
    Sketcher.Constraint("Tangent", 8, 2, 9, 2),
    Sketcher.Constraint("Tangent", 9, 1, 10, 1),
    Sketcher.Constraint("Coincident", 10, 2, 11, 1),
    Sketcher.Constraint("Tangent", 11, 2, 12, 2),
    Sketcher.Constraint("Tangent", 12, 1, 7, 1),
    Sketcher.Constraint("Coincident", 14, 2, 15, 1),
    Sketcher.Constraint("Tangent", 15, 2, 16, 2),
    Sketcher.Constraint("Tangent", 16, 1, 17, 1),
    Sketcher.Constraint("Coincident", 17, 2, 18, 1),
    Sketcher.Constraint("Tangent", 18, 2, 19, 2),
    Sketcher.Constraint("Tangent", 19, 1, 14, 1),
    Sketcher.Constraint("Coincident", 21, 2, 22, 1),
    Sketcher.Constraint("Tangent", 22, 2, 23, 2),
    Sketcher.Constraint("Tangent", 23, 1, 24, 1),
    Sketcher.Constraint("Coincident", 24, 2, 25, 1),
    Sketcher.Constraint("Tangent", 25, 2, 26, 2),
    Sketcher.Constraint("Tangent", 26, 1, 21, 1),
    Sketcher.Constraint("Horizontal", 1),
    Sketcher.Constraint("Vertical", 2),
    Sketcher.Constraint("Horizontal", 4),
    Sketcher.Constraint("Vertical", 5),
    Sketcher.Constraint("Vertical", 7),
    Sketcher.Constraint("Horizontal", 8),
    Sketcher.Constraint("Vertical", 10),
    Sketcher.Constraint("Horizontal", 11),
    Sketcher.Constraint("Vertical", 14),
    Sketcher.Constraint("Horizontal", 15),
    Sketcher.Constraint("Vertical", 17),
    Sketcher.Constraint("Horizontal", 18),
    Sketcher.Constraint("Horizontal", 21),
    Sketcher.Constraint("Vertical", 22),
    Sketcher.Constraint("Horizontal", 24),
    Sketcher.Constraint("Vertical", 25),
    Sketcher.Constraint("Coincident", 3, 3, 0, 3),
    Sketcher.Constraint("Coincident", 6, 3, 0, 3),
    Sketcher.Constraint("Coincident", 12, 3, 9, 3),
    Sketcher.Constraint("Coincident", 13, 3, 9, 3),
    Sketcher.Constraint("Coincident", 19, 3, 16, 3),
    Sketcher.Constraint("Coincident", 20, 3, 16, 3),
    Sketcher.Constraint("Coincident", 26, 3, 23, 3),
    Sketcher.Constraint("Coincident", 27, 3, 23, 3),
    Sketcher.Constraint("Equal", 0, 3),
    Sketcher.Constraint("Equal", 3, 9),
    Sketcher.Constraint("Equal", 9, 12),
    Sketcher.Constraint("Equal", 6, 13),
    Sketcher.Constraint("Equal", 12, 16),
    Sketcher.Constraint("Equal", 16, 19),
    Sketcher.Constraint("Equal", 13, 20),
    Sketcher.Constraint("Equal", 19, 23),
    Sketcher.Constraint("Equal", 23, 26),
    Sketcher.Constraint("Equal", 20, 27),
    Sketcher.Constraint("Symmetric", 0, 3, 16, 3, -2),
    Sketcher.Constraint("Symmetric", 9, 3, 23, 3, -2),
    Sketcher.Constraint("Vertical", 6, 3, 9, 3),
    Sketcher.Constraint("Radius", 0, Q("5 mm")),
    Sketcher.Constraint("Diameter", 6, Q("2.45 mm")),
    Sketcher.Constraint("DistanceX", 0, 3, -1, 1, Q("65 mm")),
    Sketcher.Constraint("DistanceY", 9, 3, 0, 3, Q("65 mm")),
    Sketcher.Constraint("DistanceY", -1, 1, 0, 3, Q("31.823807 mm")),
])
pad10 = doc.addObject("PartDesign::Pad", "Pad009")
body.addObject(pad10)
pad10.Profile = sketch11
pad10.Length = 35
pad10.Reversed = True

sketch12 = doc.addObject("Sketcher::SketchObject", "Sketch011")
body.addObject(sketch12)
sketch12.AttachmentSupport = (doc.YZ_Plane, [""])
sketch12.MapMode = "FlatFace"
sketch12.AttachmentOffset = App.Placement(Vector(0, 0, -70), App.Rotation())
add_polygon(sketch12, [(30, 10), (10, 10), (10, -10), (30, -10)])
add_polygon(sketch12, [(12, -8), (12, 8), (28, 8), (28, -8)])
sketch12.addConstraint([
    Sketcher.Constraint("Horizontal", 0),
    Sketcher.Constraint("Vertical", 1),
    Sketcher.Constraint("Horizontal", 2),
    Sketcher.Constraint("Vertical", 3),
    Sketcher.Constraint("Vertical", 4),
    Sketcher.Constraint("Horizontal", 5),
    Sketcher.Constraint("Vertical", 6),
    Sketcher.Constraint("Horizontal", 7),
    Sketcher.Constraint("Equal", 2, 1),
    Sketcher.Constraint("Equal", 7, 4),
    Sketcher.Constraint("DistanceX", 5, 1, 5, 2, Q("15 mm")),
    Sketcher.Constraint("DistanceX", 0, 2, 0, 1, Q("20.2 mm")),
    Sketcher.Constraint("DistanceX", -1, 1, 0, 2, Q("9.9 mm")),
    Sketcher.Constraint("DistanceY", -1, 1, 0, 2, Q("10.1 mm")),
    Sketcher.Constraint("DistanceX", -1, 1, 4, 2, Q("12.5 mm")),
    Sketcher.Constraint("DistanceY", -1, 1, 4, 2, Q("7.5 mm")),
])
pocket2 = doc.addObject("PartDesign::Pocket", "Pocket001")
body.addObject(pocket2)
pocket2.Profile = sketch12
pocket2.Length = 1

sketch13 = doc.addObject("Sketcher::SketchObject", "Sketch012")
body.addObject(sketch13)
sketch13.AttachmentSupport = (doc.YZ_Plane, [""])
sketch13.MapMode = "FlatFace"
sketch13.AttachmentOffset = App.Placement(Vector(0, 0, -70), App.Rotation())
add_polygon(sketch13, [(28, 8), (12, 8), (12, -8), (28, -8)])
sketch13.addConstraint([
    Sketcher.Constraint("Horizontal", 0),
    Sketcher.Constraint("Vertical", 1),
    Sketcher.Constraint("Horizontal", 2),
    Sketcher.Constraint("Vertical", 3),
    Sketcher.Constraint("Equal", 2, 1),
    Sketcher.Constraint("DistanceX", 0, 2, 0, 1, Q("15 mm")),
    Sketcher.Constraint("DistanceX", -1, 1, 0, 2, Q("12.5 mm")),
    Sketcher.Constraint("DistanceY", -1, 1, 0, 2, Q("7.5 mm")),
])
pocket3 = doc.addObject("PartDesign::Pocket", "Pocket002")
body.addObject(pocket3)
pocket3.Profile = sketch13
pocket3.Length = 5

sketch14 = doc.addObject("Sketcher::SketchObject", "Sketch013")
body.addObject(sketch14)
sketch14.AttachmentSupport = (doc.YZ_Plane, [""])
sketch14.MapMode = "FlatFace"
sketch14.AttachmentOffset = App.Placement(Vector(0, 0, -70), App.Rotation())
sketch14.addGeometry([
    Part.Circle(Vector(20, 16, 0), Vector(0, 0, 1), 1.2),
    Part.Circle(Vector(20, 22, 0), Vector(0, 0, 1), 1.2),
    Part.Circle(Vector(20, -16, 0), Vector(0, 0, 1), 1.2),
    Part.Circle(Vector(20, -22, 0), Vector(0, 0, 1), 1.2),
], False)
sketch14.addConstraint([
    Sketcher.Constraint("Equal", 0, 1),
    Sketcher.Constraint("Equal", 1, 2),
    Sketcher.Constraint("Equal", 2, 3),
    Sketcher.Constraint("Symmetric", 0, 3, 2, 3, -1),
    Sketcher.Constraint("Symmetric", 1, 3, 3, 3, -1),
    Sketcher.Constraint("Vertical", 0, 3, 1, 3),
    Sketcher.Constraint("Diameter", 0, Q("2.45 mm")),
    Sketcher.Constraint("DistanceX", -1, 1, 0, 3, Q("20 mm")),
    Sketcher.Constraint("DistanceY", -1, 1, 0, 3, Q("16 mm")),
    Sketcher.Constraint("DistanceY", -1, 1, 1, 3, Q("22 mm")),
])
pocket4 = doc.addObject("PartDesign::Pocket", "Pocket003")
body.addObject(pocket4)
pocket4.Profile = sketch14
pocket4.Length = 5
doc.recompute()

fillet = doc.addObject("PartDesign::Fillet", "Fillet")
body.addObject(fillet)
fillet.Base = (pocket4, edges_at(pocket4, [
    (75, 40, -0.676),
    (-75, 40, -0.676),
    (0, 40, 41.824),
    (72.071, 40, 38.895),
    (72.071, 40, -40.247),
    (0, 40, -43.176),
    (-72.071, 40, -40.247),
    (-72.071, 40, 38.895),
]))
fillet.Radius = 2
doc.recompute()

fillet2 = doc.addObject("PartDesign::Fillet", "Fillet001")
body.addObject(fillet2)
fillet2.Base = (fillet, edges_at(fillet, [
    (75, 0, -0.676),
    (72.071, 0, -40.247),
    (0, 0, -43.176),
    (-72.071, 0, -40.247),
    (-75, 0, -0.676),
    (-72.071, 0, 38.895),
    (0, 0, 41.824),
    (72.071, 0, 38.895),
]))
fillet2.Radius = 2

doc.recompute()
